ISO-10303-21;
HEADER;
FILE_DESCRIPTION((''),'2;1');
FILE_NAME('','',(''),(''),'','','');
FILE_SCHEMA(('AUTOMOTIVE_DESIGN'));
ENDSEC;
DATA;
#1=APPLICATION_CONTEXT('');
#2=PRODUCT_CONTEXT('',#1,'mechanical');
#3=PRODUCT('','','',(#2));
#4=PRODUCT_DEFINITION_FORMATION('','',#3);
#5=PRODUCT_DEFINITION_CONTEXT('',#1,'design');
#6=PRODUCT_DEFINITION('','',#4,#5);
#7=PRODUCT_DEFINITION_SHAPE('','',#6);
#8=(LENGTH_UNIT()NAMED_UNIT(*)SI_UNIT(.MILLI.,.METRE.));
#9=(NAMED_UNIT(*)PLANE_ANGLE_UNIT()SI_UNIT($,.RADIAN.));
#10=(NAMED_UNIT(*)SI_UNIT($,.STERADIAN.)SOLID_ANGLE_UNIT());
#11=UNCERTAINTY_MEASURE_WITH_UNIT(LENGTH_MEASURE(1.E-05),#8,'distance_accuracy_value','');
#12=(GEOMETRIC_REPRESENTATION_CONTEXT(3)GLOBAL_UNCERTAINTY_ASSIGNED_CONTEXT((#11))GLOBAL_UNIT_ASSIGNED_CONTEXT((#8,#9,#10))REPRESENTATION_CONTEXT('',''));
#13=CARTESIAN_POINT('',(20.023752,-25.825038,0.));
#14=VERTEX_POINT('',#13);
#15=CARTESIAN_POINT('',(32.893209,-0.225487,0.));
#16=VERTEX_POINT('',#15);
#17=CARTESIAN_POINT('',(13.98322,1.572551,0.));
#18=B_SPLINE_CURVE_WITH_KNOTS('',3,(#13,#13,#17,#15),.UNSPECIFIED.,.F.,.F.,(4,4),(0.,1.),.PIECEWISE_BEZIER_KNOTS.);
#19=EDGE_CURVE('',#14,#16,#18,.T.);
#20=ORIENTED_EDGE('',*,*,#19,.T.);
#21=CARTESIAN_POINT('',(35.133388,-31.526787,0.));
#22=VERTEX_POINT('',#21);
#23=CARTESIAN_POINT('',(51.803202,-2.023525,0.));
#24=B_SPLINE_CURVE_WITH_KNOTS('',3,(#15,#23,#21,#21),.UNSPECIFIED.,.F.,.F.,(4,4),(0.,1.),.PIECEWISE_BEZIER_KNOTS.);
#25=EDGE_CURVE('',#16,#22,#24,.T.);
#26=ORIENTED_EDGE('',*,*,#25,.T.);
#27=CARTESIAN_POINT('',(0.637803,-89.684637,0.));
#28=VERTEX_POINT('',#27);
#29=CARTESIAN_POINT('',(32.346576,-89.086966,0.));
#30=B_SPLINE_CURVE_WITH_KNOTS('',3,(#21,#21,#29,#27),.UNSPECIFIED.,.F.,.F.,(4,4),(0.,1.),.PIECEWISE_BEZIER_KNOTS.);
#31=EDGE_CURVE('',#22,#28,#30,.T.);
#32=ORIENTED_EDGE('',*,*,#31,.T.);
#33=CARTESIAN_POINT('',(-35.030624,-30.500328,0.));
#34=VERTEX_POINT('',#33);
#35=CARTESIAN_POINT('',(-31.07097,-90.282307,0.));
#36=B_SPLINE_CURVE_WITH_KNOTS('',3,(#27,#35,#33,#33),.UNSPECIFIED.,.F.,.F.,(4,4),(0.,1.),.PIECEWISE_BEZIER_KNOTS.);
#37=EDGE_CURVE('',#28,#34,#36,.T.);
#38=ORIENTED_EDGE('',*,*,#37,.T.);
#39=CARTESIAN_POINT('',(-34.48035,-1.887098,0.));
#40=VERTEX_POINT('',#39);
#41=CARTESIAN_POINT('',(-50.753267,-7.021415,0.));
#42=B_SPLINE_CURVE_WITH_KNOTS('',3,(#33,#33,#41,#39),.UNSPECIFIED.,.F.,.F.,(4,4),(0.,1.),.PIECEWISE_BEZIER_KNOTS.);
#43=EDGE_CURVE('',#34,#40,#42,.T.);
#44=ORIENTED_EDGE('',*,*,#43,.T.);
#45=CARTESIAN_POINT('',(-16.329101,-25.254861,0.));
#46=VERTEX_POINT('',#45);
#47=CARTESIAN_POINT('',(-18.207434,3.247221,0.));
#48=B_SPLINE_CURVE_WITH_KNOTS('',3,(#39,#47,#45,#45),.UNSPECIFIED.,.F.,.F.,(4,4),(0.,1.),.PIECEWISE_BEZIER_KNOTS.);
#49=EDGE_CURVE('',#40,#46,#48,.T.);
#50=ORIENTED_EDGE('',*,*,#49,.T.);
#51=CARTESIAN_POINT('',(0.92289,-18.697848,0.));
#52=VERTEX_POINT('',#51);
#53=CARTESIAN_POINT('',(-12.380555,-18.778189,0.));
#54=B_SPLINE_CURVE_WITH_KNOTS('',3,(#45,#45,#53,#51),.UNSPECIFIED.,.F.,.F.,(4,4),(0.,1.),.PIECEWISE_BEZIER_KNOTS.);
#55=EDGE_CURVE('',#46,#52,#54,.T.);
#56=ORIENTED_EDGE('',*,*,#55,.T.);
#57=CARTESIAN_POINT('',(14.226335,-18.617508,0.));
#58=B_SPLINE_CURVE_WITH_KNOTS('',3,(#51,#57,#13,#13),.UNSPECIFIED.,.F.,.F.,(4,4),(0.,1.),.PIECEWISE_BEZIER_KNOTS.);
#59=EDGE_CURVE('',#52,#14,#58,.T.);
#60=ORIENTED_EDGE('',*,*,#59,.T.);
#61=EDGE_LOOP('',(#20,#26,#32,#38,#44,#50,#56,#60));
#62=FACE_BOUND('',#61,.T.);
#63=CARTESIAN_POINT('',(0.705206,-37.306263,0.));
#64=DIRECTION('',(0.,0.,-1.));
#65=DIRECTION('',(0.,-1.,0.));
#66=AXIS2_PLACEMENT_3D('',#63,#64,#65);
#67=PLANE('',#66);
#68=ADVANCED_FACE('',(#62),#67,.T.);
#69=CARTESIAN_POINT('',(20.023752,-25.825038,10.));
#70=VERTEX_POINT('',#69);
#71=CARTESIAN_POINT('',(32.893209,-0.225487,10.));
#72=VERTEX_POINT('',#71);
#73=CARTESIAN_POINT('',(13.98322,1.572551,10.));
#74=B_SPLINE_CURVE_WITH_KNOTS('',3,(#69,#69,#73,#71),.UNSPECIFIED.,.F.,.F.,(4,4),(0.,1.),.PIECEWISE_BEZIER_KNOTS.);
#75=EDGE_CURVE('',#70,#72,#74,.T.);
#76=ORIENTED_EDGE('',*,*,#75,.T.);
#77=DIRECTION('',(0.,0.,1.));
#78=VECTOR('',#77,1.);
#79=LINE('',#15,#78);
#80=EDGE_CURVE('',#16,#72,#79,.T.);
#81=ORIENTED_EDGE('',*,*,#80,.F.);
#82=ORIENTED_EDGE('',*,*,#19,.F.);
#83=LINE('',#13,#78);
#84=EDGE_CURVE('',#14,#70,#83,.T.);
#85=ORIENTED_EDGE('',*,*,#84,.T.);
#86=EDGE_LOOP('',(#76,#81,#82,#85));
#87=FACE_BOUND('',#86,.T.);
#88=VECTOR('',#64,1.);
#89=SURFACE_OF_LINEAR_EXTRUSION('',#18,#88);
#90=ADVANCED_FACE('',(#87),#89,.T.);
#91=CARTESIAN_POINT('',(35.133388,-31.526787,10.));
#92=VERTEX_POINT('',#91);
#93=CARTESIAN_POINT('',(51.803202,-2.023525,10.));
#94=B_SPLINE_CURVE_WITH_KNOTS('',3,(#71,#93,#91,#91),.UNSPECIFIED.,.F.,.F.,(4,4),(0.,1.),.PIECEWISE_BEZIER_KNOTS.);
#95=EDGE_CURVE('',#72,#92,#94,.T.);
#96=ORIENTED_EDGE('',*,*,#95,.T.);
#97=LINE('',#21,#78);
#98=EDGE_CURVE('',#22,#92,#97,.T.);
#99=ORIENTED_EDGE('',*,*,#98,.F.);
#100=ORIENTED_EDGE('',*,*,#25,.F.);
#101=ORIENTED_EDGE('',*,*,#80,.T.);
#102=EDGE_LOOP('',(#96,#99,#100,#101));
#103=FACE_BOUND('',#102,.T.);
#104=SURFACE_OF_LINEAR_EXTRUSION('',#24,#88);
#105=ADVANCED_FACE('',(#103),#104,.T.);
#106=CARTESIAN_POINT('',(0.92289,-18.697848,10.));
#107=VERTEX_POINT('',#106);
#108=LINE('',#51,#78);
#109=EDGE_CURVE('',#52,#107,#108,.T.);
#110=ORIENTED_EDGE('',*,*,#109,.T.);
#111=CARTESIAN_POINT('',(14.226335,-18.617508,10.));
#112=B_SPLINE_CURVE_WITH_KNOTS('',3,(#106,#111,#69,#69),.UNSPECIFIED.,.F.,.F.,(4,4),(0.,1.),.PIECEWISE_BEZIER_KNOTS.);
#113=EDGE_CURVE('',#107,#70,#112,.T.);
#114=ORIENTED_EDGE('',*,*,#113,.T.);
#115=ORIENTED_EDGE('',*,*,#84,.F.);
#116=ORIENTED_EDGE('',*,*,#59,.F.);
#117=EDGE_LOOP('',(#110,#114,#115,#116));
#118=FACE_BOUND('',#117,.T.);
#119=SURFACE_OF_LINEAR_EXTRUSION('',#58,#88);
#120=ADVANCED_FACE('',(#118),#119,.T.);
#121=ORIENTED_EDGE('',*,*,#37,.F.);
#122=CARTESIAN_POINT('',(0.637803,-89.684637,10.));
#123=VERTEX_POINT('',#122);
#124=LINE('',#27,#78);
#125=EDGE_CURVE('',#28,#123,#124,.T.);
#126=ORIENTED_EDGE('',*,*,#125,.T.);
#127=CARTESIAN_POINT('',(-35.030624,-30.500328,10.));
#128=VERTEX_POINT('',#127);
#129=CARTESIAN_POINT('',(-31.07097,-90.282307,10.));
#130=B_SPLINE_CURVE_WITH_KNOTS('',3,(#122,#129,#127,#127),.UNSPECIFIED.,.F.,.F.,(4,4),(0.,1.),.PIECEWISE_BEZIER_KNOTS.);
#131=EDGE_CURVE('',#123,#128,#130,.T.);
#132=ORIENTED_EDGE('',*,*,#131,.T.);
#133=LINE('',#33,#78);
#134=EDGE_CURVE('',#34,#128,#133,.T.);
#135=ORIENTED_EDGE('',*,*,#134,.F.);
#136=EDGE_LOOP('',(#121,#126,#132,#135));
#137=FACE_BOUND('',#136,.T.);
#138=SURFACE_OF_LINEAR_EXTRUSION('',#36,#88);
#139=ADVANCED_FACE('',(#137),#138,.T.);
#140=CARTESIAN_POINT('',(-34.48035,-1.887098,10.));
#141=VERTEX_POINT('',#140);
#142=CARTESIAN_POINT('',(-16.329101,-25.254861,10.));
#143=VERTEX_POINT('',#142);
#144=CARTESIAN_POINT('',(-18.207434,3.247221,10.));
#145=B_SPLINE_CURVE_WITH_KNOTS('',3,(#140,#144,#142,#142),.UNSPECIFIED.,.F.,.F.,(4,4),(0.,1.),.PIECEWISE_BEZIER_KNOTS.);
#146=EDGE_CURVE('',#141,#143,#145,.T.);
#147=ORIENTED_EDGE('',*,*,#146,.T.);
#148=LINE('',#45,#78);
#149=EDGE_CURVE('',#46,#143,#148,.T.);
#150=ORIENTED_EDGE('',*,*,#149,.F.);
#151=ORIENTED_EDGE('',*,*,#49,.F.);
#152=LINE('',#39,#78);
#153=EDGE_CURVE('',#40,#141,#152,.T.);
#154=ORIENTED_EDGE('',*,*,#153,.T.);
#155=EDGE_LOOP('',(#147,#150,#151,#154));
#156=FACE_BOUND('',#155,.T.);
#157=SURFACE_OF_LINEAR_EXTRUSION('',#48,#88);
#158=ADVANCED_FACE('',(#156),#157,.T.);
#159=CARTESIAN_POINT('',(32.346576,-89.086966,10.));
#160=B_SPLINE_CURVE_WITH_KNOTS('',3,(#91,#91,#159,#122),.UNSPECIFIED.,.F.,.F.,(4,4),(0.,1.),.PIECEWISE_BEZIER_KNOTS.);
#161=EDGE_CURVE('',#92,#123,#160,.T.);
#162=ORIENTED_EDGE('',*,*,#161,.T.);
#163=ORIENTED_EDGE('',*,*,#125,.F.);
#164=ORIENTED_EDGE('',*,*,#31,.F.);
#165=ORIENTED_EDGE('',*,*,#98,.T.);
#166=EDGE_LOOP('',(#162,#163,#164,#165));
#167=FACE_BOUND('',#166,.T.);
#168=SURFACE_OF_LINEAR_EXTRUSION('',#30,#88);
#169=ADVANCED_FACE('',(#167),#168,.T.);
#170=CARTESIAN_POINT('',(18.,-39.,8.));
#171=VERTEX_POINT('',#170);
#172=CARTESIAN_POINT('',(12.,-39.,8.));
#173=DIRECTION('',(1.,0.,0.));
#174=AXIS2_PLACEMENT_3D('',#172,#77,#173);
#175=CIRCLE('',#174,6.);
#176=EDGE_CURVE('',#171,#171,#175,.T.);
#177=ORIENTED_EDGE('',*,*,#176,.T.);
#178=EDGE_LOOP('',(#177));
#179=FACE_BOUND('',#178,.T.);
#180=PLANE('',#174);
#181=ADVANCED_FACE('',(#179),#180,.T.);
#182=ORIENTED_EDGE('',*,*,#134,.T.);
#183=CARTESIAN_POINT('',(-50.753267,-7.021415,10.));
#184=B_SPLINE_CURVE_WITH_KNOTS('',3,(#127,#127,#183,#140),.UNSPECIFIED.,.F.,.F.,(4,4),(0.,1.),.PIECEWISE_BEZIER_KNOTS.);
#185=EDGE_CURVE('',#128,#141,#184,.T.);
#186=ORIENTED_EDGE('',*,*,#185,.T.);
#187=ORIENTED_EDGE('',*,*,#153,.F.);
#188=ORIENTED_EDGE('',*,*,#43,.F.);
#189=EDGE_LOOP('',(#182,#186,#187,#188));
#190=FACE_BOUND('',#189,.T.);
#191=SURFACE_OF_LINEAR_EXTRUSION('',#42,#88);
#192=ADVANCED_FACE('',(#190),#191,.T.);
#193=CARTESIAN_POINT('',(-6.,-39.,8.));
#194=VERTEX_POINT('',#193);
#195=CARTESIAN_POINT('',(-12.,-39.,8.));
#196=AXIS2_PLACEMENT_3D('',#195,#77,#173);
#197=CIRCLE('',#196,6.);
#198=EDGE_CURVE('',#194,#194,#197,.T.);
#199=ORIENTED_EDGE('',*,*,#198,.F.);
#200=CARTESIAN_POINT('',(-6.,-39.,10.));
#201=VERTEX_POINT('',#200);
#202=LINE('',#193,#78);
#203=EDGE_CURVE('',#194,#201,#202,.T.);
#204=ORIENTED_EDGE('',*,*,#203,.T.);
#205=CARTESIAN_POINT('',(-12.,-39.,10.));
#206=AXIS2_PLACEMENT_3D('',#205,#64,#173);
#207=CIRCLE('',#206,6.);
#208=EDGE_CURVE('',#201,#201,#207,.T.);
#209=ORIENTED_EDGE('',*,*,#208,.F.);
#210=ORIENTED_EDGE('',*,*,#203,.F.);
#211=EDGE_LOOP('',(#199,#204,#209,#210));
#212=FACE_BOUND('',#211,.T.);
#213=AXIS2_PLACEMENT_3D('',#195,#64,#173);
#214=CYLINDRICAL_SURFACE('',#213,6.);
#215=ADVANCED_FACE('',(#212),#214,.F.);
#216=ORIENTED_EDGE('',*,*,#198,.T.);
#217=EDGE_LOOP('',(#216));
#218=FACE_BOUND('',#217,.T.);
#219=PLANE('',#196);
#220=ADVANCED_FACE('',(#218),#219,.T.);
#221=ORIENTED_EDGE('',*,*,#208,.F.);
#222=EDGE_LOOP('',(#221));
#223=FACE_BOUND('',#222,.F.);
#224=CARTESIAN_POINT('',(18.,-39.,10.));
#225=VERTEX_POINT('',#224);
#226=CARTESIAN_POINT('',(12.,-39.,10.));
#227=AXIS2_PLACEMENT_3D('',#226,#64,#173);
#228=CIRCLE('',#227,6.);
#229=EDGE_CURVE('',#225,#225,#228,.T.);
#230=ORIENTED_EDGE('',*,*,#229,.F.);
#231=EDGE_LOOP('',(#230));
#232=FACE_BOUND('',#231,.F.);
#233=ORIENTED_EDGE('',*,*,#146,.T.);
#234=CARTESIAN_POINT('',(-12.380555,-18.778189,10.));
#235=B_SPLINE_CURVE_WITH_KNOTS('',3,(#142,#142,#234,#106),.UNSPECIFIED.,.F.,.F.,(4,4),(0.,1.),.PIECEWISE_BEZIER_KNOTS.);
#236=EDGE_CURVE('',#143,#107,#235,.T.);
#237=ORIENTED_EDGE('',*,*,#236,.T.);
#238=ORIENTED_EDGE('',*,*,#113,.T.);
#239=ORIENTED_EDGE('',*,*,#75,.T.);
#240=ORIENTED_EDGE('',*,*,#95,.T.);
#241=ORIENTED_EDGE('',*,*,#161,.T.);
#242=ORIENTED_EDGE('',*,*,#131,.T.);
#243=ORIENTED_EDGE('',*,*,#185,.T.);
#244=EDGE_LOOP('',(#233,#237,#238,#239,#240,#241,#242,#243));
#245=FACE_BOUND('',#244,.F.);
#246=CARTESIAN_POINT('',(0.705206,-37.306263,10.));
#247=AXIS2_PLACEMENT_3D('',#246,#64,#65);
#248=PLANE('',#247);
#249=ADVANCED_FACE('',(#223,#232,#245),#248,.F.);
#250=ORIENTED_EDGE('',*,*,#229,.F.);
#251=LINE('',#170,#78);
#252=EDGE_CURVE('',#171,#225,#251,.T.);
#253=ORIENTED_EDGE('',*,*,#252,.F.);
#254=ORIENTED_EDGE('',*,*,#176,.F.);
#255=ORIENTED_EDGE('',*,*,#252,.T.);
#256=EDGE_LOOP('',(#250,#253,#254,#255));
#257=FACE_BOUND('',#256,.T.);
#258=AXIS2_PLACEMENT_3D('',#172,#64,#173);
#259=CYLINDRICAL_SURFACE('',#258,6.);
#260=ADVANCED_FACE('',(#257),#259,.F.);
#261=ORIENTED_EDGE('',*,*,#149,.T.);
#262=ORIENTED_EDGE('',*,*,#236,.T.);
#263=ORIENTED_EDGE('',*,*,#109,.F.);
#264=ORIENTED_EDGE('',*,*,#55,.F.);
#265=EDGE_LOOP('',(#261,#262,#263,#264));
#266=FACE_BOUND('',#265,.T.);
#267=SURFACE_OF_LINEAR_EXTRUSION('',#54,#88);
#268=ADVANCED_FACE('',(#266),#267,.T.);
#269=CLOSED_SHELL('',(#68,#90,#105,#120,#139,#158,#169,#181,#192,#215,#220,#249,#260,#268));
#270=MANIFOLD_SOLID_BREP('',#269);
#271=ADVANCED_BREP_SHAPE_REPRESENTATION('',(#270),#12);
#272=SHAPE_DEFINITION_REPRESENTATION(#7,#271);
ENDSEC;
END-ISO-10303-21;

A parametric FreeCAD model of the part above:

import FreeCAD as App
import Part
import Sketcher

doc = App.newDocument("Part")
body = doc.addObject("PartDesign::Body", "Body")

# Sketch on XY plane
sketch1 = doc.addObject("Sketcher::SketchObject", "Sketch")
body.addObject(sketch1)
sketch1.AttachmentSupport = (doc.XY_Plane, [""])
sketch1.MapMode = "FlatFace"
sketch1.AttachmentOffset = App.Placement(App.Vector(0, 0, 8), App.Rotation())
sketch1.addGeometry(Part.Circle(App.Vector(54, -39, 0), App.Vector(0, 0, 1), 6), False)
sketch1.addConstraint([
    Sketcher.Constraint("Diameter", 0, 12.0),
    Sketcher.Constraint("DistanceX", -1, 1, 0, 3, 54.0),
    Sketcher.Constraint("DistanceY", 0, 3, -1, 1, 39.0),
])
pad1 = doc.addObject("PartDesign::Pad", "Pad")
body.addObject(pad1)
pad1.Profile = sketch1
pad1.Length = 10
body2 = doc.addObject("PartDesign::Body", "Body001")
body2.AllowCompound = True

# Sketch on XY plane
sketch2 = doc.addObject("Sketcher::SketchObject", "Sketch001")
body2.addObject(sketch2)
sketch2.AttachmentSupport = (doc.getObject("XY_Plane001"), [""])
sketch2.MapMode = "FlatFace"
sketch2.AttachmentOffset = App.Placement(App.Vector(0, 0, 8), App.Rotation())
sketch2.addGeometry(Part.Circle(App.Vector(30, -39, 0), App.Vector(0, 0, 1), 6), False)
sketch2.addConstraint([
    Sketcher.Constraint("Diameter", 0, 12.0),
    Sketcher.Constraint("DistanceX", -1, 1, 0, 3, 30.0),
    Sketcher.Constraint("DistanceY", 0, 3, -1, 1, 39.0),
])
pad2 = doc.addObject("PartDesign::Pad", "Pad001")
body2.addObject(pad2)
pad2.Profile = sketch2
pad2.Length = 10
doc.recompute()

boolean = doc.addObject("PartDesign::Boolean", "Boolean")
body2.addObject(boolean)
boolean.Type = "Fuse"
boolean.addObjects([body])
body3 = doc.addObject("PartDesign::Body", "Body002")

# Sketch on XY plane
sketch3 = doc.addObject("Sketcher::SketchObject", "Sketch002")
body3.addObject(sketch3)
sketch3.AttachmentSupport = (doc.getObject("XY_Plane002"), [""])
sketch3.MapMode = "FlatFace"
sketch3.addGeometry([
    Part.BSplineCurve([App.Vector(6.969376, -30.500328, 0), App.Vector(6.969376, -30.500328, 0), App.Vector(-8.753267, -7.021415, 0), App.Vector(7.51965, -1.887098, 0)], [4, 4], [0, 1], False, 3, [1, 1, 1, 1], False),  # 0
    Part.BSplineCurve([App.Vector(7.51965, -1.887098, 0), App.Vector(23.792566, 3.247221, 0), App.Vector(25.670899, -25.254861, 0), App.Vector(25.670899, -25.254861, 0)], [4, 4], [0, 1], False, 3, [1, 1, 1, 1], False),  # 1
    Part.BSplineCurve([App.Vector(25.670899, -25.254861, 0), App.Vector(25.670899, -25.254861, 0), App.Vector(29.619445, -18.778189, 0), App.Vector(42.92289, -18.697848, 0)], [4, 4], [0, 1], False, 3, [1, 1, 1, 1], False),  # 2
    Part.BSplineCurve([App.Vector(42.92289, -18.697848, 0), App.Vector(56.226335, -18.617508, 0), App.Vector(62.023752, -25.825038, 0), App.Vector(62.023752, -25.825038, 0)], [4, 4], [0, 1], False, 3, [1, 1, 1, 1], False),  # 3
    Part.BSplineCurve([App.Vector(62.023752, -25.825038, 0), App.Vector(62.023752, -25.825038, 0), App.Vector(55.98322, 1.572551, 0), App.Vector(74.893209, -0.225487, 0)], [4, 4], [0, 1], False, 3, [1, 1, 1, 1], False),  # 4
    Part.BSplineCurve([App.Vector(74.893209, -0.225487, 0), App.Vector(93.803202, -2.023525, 0), App.Vector(77.133388, -31.526787, 0), App.Vector(77.133388, -31.526787, 0)], [4, 4], [0, 1], False, 3, [1, 1, 1, 1], False),  # 5
    Part.BSplineCurve([App.Vector(77.133388, -31.526787, 0), App.Vector(77.133388, -31.526787, 0), App.Vector(74.346576, -89.086966, 0), App.Vector(42.637803, -89.684637, 0)], [4, 4], [0, 1], False, 3, [1, 1, 1, 1], False),  # 6
    Part.BSplineCurve([App.Vector(42.637803, -89.684637, 0), App.Vector(10.92903, -90.282307, 0), App.Vector(6.969376, -30.500328, 0), App.Vector(6.969376, -30.500328, 0)], [4, 4], [0, 1], False, 3, [1, 1, 1, 1], False),  # 7
], False)
sketch3.addConstraint([
    Sketcher.Constraint("Block", 0),
    Sketcher.Constraint("Block", 1),
    Sketcher.Constraint("Block", 2),
    Sketcher.Constraint("Block", 3),
    Sketcher.Constraint("Block", 4),
    Sketcher.Constraint("Block", 5),
    Sketcher.Constraint("Block", 6),
    Sketcher.Constraint("Block", 7),
])
pad3 = doc.addObject("PartDesign::Pad", "Pad002")
body3.addObject(pad3)
pad3.Profile = sketch3
pad3.Length = 10
doc.recompute()

boolean2 = doc.addObject("PartDesign::Boolean", "Boolean001")
body3.addObject(boolean2)
boolean2.Type = "Cut"
boolean2.addObjects([body2])
body4 = doc.addObject("PartDesign::Body", "Body003")
doc.recompute()

body3.Placement = App.Placement(App.Vector(-42, 0, 0), App.Rotation(App.Vector(0, 0, 1), 0))
boolean3 = doc.addObject("PartDesign::Boolean", "Boolean002")
body4.addObject(boolean3)
boolean3.Type = "Fuse"
boolean3.addObjects([body3])

doc.recompute()
